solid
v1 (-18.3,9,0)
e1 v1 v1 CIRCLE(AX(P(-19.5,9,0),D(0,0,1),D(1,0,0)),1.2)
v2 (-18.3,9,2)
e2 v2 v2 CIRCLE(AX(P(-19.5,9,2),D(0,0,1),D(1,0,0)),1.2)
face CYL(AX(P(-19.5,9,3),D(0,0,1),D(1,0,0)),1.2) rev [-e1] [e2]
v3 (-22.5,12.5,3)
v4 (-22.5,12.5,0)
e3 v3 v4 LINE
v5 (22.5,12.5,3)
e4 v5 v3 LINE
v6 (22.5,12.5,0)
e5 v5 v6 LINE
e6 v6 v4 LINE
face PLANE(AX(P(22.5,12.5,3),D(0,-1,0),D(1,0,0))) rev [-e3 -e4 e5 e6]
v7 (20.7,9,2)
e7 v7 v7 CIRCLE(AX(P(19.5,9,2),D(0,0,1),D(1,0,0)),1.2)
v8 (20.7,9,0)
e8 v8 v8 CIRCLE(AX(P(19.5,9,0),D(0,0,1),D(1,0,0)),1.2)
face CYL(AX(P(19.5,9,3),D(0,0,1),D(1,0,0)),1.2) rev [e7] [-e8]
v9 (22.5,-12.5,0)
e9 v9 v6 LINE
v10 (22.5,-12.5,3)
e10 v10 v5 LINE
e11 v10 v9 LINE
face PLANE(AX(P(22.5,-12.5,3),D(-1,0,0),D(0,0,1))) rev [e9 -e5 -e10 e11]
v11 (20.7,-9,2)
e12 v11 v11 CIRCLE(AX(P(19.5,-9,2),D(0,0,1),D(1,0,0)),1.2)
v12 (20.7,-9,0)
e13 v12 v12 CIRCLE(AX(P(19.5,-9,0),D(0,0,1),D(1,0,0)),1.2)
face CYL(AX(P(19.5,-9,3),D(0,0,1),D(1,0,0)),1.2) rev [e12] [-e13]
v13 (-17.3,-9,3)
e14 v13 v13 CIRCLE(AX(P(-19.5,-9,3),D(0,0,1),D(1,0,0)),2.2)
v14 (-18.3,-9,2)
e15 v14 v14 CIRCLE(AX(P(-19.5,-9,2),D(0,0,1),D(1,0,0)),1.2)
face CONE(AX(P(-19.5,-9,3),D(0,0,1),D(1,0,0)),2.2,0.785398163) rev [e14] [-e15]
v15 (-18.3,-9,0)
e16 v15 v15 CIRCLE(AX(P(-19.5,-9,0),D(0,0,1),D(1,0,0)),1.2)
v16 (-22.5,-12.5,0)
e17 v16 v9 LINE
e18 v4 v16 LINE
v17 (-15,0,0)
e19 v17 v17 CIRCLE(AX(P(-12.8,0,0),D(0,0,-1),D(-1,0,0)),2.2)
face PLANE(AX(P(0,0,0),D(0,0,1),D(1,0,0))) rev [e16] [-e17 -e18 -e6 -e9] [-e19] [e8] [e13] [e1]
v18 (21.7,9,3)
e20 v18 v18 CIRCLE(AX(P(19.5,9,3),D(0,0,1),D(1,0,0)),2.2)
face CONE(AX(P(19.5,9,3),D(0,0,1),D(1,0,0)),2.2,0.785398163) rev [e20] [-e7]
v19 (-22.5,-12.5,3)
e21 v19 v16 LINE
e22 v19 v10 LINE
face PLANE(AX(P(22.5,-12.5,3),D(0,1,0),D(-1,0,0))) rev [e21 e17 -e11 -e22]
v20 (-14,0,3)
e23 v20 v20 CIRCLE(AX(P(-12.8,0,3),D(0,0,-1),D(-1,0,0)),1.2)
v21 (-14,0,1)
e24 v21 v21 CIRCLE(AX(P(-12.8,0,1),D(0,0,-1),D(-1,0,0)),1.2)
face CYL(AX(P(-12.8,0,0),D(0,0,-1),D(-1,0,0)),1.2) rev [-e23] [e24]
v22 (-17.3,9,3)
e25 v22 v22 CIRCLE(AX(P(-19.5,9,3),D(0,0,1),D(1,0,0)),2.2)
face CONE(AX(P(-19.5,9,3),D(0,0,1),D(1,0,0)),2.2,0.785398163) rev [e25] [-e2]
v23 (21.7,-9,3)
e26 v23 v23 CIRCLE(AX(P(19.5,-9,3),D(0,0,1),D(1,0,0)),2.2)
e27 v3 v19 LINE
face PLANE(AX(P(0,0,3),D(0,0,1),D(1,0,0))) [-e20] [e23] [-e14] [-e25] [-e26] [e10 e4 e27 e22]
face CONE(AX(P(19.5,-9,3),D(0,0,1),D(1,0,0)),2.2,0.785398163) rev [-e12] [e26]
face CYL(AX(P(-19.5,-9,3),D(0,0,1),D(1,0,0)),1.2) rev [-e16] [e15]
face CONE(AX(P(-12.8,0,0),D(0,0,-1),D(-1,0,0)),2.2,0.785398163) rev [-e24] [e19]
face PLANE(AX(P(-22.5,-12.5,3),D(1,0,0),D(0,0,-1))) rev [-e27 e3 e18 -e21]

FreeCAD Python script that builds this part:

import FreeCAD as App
import Part
import Sketcher

V = App.Vector
Q = App.Units.Quantity

doc = App.newDocument("Part")
body = doc.addObject("PartDesign::Body", "Body")

# Sketch on XY plane
sketch1 = body.newObject("Sketcher::SketchObject", "Sketch")
sketch1.AttachmentSupport = (doc.getObject("XY_Plane"), [""])
sketch1.MapMode = "FlatFace"
sketch1.addGeometry([
    Part.LineSegment(V(-22, 12, 0), V(-22, -12, 0)),
    Part.LineSegment(V(-22, -12, 0), V(22, -12, 0)),
    Part.LineSegment(V(22, -12, 0), V(22, 12, 0)),
    Part.LineSegment(V(22, 12, 0), V(-22, 12, 0)),
], False)
sketch1.addConstraint([
    Sketcher.Constraint("Coincident", 0, 2, 1, 1),
    Sketcher.Constraint("Coincident", 1, 2, 2, 1),
    Sketcher.Constraint("Coincident", 2, 2, 3, 1),
    Sketcher.Constraint("Coincident", 3, 2, 0, 1),
    Sketcher.Constraint("Vertical", 0),
    Sketcher.Constraint("Horizontal", 1),
    Sketcher.Constraint("Vertical", 2),
    Sketcher.Constraint("Horizontal", 3),
    Sketcher.Constraint("Symmetric", 0, 2, 2, 2, -1, 1),
    Sketcher.Constraint("DistanceX", 1, 1, 1, 2, Q("45 mm")),
    Sketcher.Constraint("DistanceY", 0, 2, 0, 1, Q("25 mm")),
])
pad1 = body.newObject("PartDesign::Pad", "Pad")
pad1.Profile = sketch1
pad1.Length = 3

# Sketch on XY plane
sketch2 = body.newObject("Sketcher::SketchObject", "Sketch001")
sketch2.AttachmentSupport = (doc.getObject("XY_Plane"), [""])
sketch2.MapMode = "FlatFace"
sketch2.AttachmentOffset = App.Placement(V(0, 0, 3), App.Rotation())
sketch2.addGeometry([
    Part.Circle(V(-19.5, 9, 0), V(0, 0, 1), 1.2),
    Part.Circle(V(19.5, 9, 0), V(0, 0, 1), 1.2),
    Part.Circle(V(19.5, -9, 0), V(0, 0, 1), 1.2),
    Part.Circle(V(-19.5, -9, 0), V(0, 0, 1), 1.2),
], False)
sketch2.addConstraint([
    Sketcher.Constraint("Equal", 0, 1),
    Sketcher.Constraint("Equal", 1, 2),
    Sketcher.Constraint("Equal", 2, 3),
    Sketcher.Constraint("Symmetric", 0, 3, 2, 3, -1, 1),
    Sketcher.Constraint("Symmetric", 1, 3, 3, 3, -1, 1),
    Sketcher.Constraint("Symmetric", 0, 3, 1, 3, -2),
    Sketcher.Constraint("Diameter", 0, Q("2.4 mm")),
    Sketcher.Constraint("DistanceY", -1, 1, 0, 3, Q("9 mm")),
    Sketcher.Constraint("DistanceX", 0, 3, 1, 3, Q("39 mm")),
])
doc.recompute()
hole = body.newObject("PartDesign::Hole", "Hole")
hole.Profile = sketch2
hole.ThreadType = "None"
hole.Diameter = 2.4
hole.DepthType = "ThroughAll"
hole.HoleCutType = "Countersink"
hole.HoleCutDiameter = 4.4
hole.HoleCutCountersinkAngle = 90

# Sketch on XY plane
sketch3 = body.newObject("Sketcher::SketchObject", "Sketch002")
sketch3.AttachmentSupport = (doc.getObject("XY_Plane"), [""])
sketch3.MapMode = "FlatFace"
sketch3.addGeometry(Part.Circle(V(-12.8, 0, 0), V(0, 0, 1), 1.2), False)
sketch3.addConstraint([
    Sketcher.Constraint("PointOnObject", 0, 3, -1),
    Sketcher.Constraint("Diameter", 0, Q("2.4 mm")),
    Sketcher.Constraint("DistanceX", 0, 3, -1, 1, Q("12.8 mm")),
])
doc.recompute()
hole2 = body.newObject("PartDesign::Hole", "Hole001")
hole2.Profile = sketch3
hole2.ThreadType = "None"
hole2.Diameter = 2.4
hole2.DepthType = "ThroughAll"
hole2.HoleCutType = "Countersink"
hole2.HoleCutDiameter = 4.4
hole2.HoleCutCountersinkAngle = 90
hole2.Reversed = True

doc.recompute()
